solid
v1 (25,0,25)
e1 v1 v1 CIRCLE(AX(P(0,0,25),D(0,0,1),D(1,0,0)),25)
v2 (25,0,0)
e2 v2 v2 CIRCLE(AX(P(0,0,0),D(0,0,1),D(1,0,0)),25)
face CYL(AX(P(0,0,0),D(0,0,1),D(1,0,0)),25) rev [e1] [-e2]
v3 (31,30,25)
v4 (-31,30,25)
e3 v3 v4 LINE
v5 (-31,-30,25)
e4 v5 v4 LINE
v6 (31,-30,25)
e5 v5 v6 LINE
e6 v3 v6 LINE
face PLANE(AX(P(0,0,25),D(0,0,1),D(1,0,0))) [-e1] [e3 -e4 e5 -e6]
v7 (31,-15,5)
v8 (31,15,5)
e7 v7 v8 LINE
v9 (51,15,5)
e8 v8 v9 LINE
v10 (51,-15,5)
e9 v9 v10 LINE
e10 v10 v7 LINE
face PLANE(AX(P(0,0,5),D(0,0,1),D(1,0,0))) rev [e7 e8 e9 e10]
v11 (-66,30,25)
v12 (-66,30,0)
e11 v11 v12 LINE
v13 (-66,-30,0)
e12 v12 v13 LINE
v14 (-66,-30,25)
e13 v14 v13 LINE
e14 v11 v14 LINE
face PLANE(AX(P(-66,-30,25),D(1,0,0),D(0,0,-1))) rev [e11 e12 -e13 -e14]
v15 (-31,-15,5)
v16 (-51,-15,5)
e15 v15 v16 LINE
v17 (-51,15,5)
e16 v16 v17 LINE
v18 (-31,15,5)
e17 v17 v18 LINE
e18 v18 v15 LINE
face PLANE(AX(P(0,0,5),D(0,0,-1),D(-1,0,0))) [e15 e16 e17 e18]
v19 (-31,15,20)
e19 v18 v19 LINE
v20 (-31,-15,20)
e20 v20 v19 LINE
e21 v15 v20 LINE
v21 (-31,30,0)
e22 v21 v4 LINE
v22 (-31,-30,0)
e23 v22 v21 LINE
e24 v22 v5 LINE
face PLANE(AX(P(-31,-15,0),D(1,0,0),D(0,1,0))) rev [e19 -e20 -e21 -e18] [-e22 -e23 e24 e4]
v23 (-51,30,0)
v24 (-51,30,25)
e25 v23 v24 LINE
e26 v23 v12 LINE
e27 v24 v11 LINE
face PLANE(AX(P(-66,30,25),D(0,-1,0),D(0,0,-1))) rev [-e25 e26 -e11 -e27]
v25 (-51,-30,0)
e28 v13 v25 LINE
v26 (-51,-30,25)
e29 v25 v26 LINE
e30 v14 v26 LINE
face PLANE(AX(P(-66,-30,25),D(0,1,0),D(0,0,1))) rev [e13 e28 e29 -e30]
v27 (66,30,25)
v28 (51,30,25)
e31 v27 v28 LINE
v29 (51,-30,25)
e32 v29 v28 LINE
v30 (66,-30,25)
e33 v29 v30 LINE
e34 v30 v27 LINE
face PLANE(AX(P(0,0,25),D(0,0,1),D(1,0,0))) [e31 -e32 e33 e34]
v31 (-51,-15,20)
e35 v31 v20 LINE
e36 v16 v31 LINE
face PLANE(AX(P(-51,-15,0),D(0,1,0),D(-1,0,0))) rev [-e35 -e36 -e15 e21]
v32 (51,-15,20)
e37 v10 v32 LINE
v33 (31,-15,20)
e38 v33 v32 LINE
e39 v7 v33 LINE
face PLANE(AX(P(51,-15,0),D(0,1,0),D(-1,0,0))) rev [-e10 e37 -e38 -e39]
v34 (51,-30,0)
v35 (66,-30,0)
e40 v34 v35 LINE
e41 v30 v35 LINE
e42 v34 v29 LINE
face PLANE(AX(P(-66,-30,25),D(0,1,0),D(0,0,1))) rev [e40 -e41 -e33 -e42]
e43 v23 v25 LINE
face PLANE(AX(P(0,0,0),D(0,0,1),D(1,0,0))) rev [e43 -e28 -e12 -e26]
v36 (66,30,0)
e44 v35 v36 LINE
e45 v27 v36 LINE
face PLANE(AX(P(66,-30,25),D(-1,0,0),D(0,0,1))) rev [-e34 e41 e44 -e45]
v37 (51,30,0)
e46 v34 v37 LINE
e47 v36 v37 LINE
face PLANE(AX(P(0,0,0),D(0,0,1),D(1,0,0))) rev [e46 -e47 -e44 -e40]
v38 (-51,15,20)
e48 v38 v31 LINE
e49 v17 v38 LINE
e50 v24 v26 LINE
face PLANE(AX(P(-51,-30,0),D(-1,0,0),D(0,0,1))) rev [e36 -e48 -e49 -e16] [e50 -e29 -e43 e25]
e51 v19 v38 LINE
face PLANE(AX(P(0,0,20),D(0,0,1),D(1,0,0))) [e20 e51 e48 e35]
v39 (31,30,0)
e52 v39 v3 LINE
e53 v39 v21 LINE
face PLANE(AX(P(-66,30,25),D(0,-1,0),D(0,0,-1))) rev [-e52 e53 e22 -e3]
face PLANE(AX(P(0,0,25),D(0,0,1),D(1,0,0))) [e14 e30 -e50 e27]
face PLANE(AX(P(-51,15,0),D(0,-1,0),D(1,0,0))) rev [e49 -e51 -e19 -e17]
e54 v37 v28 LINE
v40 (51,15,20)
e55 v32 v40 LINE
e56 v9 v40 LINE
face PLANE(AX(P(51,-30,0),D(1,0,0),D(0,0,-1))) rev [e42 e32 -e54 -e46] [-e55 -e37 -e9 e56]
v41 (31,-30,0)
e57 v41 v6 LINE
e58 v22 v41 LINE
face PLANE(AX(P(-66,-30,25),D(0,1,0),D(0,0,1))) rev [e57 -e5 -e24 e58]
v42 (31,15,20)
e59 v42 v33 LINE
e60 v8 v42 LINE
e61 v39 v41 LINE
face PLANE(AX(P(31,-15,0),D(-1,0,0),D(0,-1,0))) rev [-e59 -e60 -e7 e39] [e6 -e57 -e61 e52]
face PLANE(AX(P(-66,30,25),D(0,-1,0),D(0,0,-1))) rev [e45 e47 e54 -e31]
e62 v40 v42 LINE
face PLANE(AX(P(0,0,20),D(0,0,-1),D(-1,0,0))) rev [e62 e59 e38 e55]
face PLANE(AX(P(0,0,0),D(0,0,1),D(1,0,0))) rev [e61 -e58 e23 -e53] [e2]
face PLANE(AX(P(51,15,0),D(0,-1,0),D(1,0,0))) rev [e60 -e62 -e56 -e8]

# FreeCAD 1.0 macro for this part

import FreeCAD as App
import Part
import Sketcher


def add_polygon(sketch, points):
    """Adds a closed chain of lines whose ends are joined by coincident constraints."""
    first, n = sketch.GeometryCount, len(points)
    for a, b in zip(points, points[1:] + points[:1]):
        sketch.addGeometry(Part.LineSegment(App.Vector(*a, 0), App.Vector(*b, 0)), False)
    for i in range(n):
        sketch.addConstraint(Sketcher.Constraint("Coincident", first + i, 2, first + (i + 1) % n, 1))

doc = App.newDocument("Part")
body = doc.addObject("PartDesign::Body", "Body")

sketch1 = doc.addObject("Sketcher::SketchObject", "Sketch")
body.addObject(sketch1)
sketch1.AttachmentSupport = (doc.XY_Plane, [""])
sketch1.MapMode = "FlatFace"
add_polygon(sketch1, [(-66, -30), (66, -30), (66, 30), (-66, 30)])
sketch1.addConstraint([
    Sketcher.Constraint("Horizontal", 0),
    Sketcher.Constraint("Vertical", 1),
    Sketcher.Constraint("Horizontal", 2),
    Sketcher.Constraint("Vertical", 3),
    Sketcher.Constraint("Symmetric", 0, 2, 2, 2, -1, 1),
    Sketcher.Constraint("DistanceX", 0, 1, 0, 2, 132.0),
    Sketcher.Constraint("DistanceY", 1, 1, 1, 2, 60.0),
])
pad1 = doc.addObject("PartDesign::Pad", "Pad")
body.addObject(pad1)
pad1.Profile = sketch1
pad1.Length = 25

sketch2 = doc.addObject("Sketcher::SketchObject", "Sketch001")
body.addObject(sketch2)
sketch2.AttachmentSupport = (doc.XY_Plane, [""])
sketch2.MapMode = "FlatFace"
sketch2.AttachmentOffset = App.Placement(App.Vector(0, 0, 25), App.Rotation())
add_polygon(sketch2, [(-51, 30), (-51, 15), (-31, 15), (-31, 30)])
add_polygon(sketch2, [(31, 30), (31, 15), (51, 15), (51, 30)])
add_polygon(sketch2, [(31, -15), (31, -30), (51, -30), (51, -15)])
add_polygon(sketch2, [(-51, -15), (-51, -30), (-31, -30), (-31, -15)])
sketch2.addConstraint([
    Sketcher.Constraint("Vertical", 0),
    Sketcher.Constraint("Horizontal", 1),
    Sketcher.Constraint("Vertical", 2),
    Sketcher.Constraint("Horizontal", 3),
    Sketcher.Constraint("Vertical", 4),
    Sketcher.Constraint("Horizontal", 5),
    Sketcher.Constraint("Vertical", 6),
    Sketcher.Constraint("Horizontal", 7),
    Sketcher.Constraint("Vertical", 8),
    Sketcher.Constraint("Horizontal", 9),
    Sketcher.Constraint("Vertical", 10),
    Sketcher.Constraint("Horizontal", 11),
    Sketcher.Constraint("Vertical", 12),
    Sketcher.Constraint("Horizontal", 13),
    Sketcher.Constraint("Vertical", 14),
    Sketcher.Constraint("Horizontal", 15),
    Sketcher.Constraint("Symmetric", 2, 2, 8, 2, -1, 1),
    Sketcher.Constraint("Symmetric", 0, 2, 10, 2, -1, 1),
    Sketcher.Constraint("Symmetric", 6, 2, 12, 2, -1, 1),
    Sketcher.Constraint("Symmetric", 4, 2, 14, 2, -1, 1),
    Sketcher.Constraint("Symmetric", 1, 2, 4, 2, -2),
    Sketcher.Constraint("Symmetric", 3, 2, 6, 2, -2),
    Sketcher.Constraint("DistanceX", 1, 1, 1, 2, 20.0),
    Sketcher.Constraint("DistanceY", 0, 2, 0, 1, 15.0),
    Sketcher.Constraint("DistanceX", 0, 2, -1, 1, 51.0),
    Sketcher.Constraint("DistanceY", -1, 1, 0, 2, 15.0),
])
pocket1 = doc.addObject("PartDesign::Pocket", "Pocket")
body.addObject(pocket1)
pocket1.Profile = sketch2
pocket1.Type = "ThroughAll"

sketch3 = doc.addObject("Sketcher::SketchObject", "Sketch002")
body.addObject(sketch3)
sketch3.AttachmentSupport = (doc.XY_Plane, [""])
sketch3.MapMode = "FlatFace"
sketch3.AttachmentOffset = App.Placement(App.Vector(0, 0, 25), App.Rotation())
add_polygon(sketch3, [(-51, 15), (-51, -15), (-31, -15), (-31, 15)])
add_polygon(sketch3, [(31, 15), (31, -15), (51, -15), (51, 15)])
sketch3.addConstraint([
    Sketcher.Constraint("Vertical", 0),
    Sketcher.Constraint("Horizontal", 1),
    Sketcher.Constraint("Vertical", 2),
    Sketcher.Constraint("Horizontal", 3),
    Sketcher.Constraint("Vertical", 4),
    Sketcher.Constraint("Horizontal", 5),
    Sketcher.Constraint("Vertical", 6),
    Sketcher.Constraint("Horizontal", 7),
    Sketcher.Constraint("Symmetric", 2, 2, 4, 2, -1, 1),
    Sketcher.Constraint("Symmetric", 0, 2, 6, 2, -1, 1),
    Sketcher.Constraint("Horizontal", 1, 2, 4, 2),
    Sketcher.Constraint("DistanceX", 1, 1, 1, 2, 20.0),
    Sketcher.Constraint("DistanceY", 0, 2, 0, 1, 30.0),
    Sketcher.Constraint("DistanceX", 0, 2, -1, 1, 51.0),
])
pocket2 = doc.addObject("PartDesign::Pocket", "Pocket001")
body.addObject(pocket2)
pocket2.Profile = sketch3
pocket2.Length = 5

sketch4 = doc.addObject("Sketcher::SketchObject", "Sketch003")
body.addObject(sketch4)
sketch4.AttachmentSupport = (doc.XY_Plane, [""])
sketch4.MapMode = "FlatFace"
add_polygon(sketch4, [(-51, -15), (-51, 15), (-31, 15), (-31, -15)])
add_polygon(sketch4, [(31, -15), (31, 15), (51, 15), (51, -15)])
sketch4.addConstraint([
    Sketcher.Constraint("Vertical", 0),
    Sketcher.Constraint("Horizontal", 1),
    Sketcher.Constraint("Vertical", 2),
    Sketcher.Constraint("Horizontal", 3),
    Sketcher.Constraint("Vertical", 4),
    Sketcher.Constraint("Horizontal", 5),
    Sketcher.Constraint("Vertical", 6),
    Sketcher.Constraint("Horizontal", 7),
    Sketcher.Constraint("Symmetric", 2, 2, 4, 2, -1, 1),
    Sketcher.Constraint("Symmetric", 0, 2, 6, 2, -1, 1),
    Sketcher.Constraint("Horizontal", 1, 2, 4, 2),
    Sketcher.Constraint("DistanceX", 1, 1, 1, 2, 20.0),
    Sketcher.Constraint("DistanceY", 0, 1, 0, 2, 30.0),
    Sketcher.Constraint("DistanceX", 0, 2, -1, 1, 51.0),
])
pocket3 = doc.addObject("PartDesign::Pocket", "Pocket002")
body.addObject(pocket3)
pocket3.Profile = sketch4
pocket3.Length = 5
pocket3.Reversed = True

sketch5 = doc.addObject("Sketcher::SketchObject", "Sketch004")
body.addObject(sketch5)
sketch5.AttachmentSupport = (doc.XY_Plane, [""])
sketch5.MapMode = "FlatFace"
sketch5.AttachmentOffset = App.Placement(App.Vector(0, 0, 25), App.Rotation())
sketch5.addGeometry(Part.Circle(App.Vector(0, 0, 0), App.Vector(0, 0, 1), 25), False)
sketch5.addConstraint([
    Sketcher.Constraint("Coincident", 0, 3, -1, 1),
    Sketcher.Constraint("Diameter", 0, 50.0),
])
pocket4 = doc.addObject("PartDesign::Pocket", "Pocket003")
body.addObject(pocket4)
pocket4.Profile = sketch5
pocket4.Type = "ThroughAll"

doc.recompute()
